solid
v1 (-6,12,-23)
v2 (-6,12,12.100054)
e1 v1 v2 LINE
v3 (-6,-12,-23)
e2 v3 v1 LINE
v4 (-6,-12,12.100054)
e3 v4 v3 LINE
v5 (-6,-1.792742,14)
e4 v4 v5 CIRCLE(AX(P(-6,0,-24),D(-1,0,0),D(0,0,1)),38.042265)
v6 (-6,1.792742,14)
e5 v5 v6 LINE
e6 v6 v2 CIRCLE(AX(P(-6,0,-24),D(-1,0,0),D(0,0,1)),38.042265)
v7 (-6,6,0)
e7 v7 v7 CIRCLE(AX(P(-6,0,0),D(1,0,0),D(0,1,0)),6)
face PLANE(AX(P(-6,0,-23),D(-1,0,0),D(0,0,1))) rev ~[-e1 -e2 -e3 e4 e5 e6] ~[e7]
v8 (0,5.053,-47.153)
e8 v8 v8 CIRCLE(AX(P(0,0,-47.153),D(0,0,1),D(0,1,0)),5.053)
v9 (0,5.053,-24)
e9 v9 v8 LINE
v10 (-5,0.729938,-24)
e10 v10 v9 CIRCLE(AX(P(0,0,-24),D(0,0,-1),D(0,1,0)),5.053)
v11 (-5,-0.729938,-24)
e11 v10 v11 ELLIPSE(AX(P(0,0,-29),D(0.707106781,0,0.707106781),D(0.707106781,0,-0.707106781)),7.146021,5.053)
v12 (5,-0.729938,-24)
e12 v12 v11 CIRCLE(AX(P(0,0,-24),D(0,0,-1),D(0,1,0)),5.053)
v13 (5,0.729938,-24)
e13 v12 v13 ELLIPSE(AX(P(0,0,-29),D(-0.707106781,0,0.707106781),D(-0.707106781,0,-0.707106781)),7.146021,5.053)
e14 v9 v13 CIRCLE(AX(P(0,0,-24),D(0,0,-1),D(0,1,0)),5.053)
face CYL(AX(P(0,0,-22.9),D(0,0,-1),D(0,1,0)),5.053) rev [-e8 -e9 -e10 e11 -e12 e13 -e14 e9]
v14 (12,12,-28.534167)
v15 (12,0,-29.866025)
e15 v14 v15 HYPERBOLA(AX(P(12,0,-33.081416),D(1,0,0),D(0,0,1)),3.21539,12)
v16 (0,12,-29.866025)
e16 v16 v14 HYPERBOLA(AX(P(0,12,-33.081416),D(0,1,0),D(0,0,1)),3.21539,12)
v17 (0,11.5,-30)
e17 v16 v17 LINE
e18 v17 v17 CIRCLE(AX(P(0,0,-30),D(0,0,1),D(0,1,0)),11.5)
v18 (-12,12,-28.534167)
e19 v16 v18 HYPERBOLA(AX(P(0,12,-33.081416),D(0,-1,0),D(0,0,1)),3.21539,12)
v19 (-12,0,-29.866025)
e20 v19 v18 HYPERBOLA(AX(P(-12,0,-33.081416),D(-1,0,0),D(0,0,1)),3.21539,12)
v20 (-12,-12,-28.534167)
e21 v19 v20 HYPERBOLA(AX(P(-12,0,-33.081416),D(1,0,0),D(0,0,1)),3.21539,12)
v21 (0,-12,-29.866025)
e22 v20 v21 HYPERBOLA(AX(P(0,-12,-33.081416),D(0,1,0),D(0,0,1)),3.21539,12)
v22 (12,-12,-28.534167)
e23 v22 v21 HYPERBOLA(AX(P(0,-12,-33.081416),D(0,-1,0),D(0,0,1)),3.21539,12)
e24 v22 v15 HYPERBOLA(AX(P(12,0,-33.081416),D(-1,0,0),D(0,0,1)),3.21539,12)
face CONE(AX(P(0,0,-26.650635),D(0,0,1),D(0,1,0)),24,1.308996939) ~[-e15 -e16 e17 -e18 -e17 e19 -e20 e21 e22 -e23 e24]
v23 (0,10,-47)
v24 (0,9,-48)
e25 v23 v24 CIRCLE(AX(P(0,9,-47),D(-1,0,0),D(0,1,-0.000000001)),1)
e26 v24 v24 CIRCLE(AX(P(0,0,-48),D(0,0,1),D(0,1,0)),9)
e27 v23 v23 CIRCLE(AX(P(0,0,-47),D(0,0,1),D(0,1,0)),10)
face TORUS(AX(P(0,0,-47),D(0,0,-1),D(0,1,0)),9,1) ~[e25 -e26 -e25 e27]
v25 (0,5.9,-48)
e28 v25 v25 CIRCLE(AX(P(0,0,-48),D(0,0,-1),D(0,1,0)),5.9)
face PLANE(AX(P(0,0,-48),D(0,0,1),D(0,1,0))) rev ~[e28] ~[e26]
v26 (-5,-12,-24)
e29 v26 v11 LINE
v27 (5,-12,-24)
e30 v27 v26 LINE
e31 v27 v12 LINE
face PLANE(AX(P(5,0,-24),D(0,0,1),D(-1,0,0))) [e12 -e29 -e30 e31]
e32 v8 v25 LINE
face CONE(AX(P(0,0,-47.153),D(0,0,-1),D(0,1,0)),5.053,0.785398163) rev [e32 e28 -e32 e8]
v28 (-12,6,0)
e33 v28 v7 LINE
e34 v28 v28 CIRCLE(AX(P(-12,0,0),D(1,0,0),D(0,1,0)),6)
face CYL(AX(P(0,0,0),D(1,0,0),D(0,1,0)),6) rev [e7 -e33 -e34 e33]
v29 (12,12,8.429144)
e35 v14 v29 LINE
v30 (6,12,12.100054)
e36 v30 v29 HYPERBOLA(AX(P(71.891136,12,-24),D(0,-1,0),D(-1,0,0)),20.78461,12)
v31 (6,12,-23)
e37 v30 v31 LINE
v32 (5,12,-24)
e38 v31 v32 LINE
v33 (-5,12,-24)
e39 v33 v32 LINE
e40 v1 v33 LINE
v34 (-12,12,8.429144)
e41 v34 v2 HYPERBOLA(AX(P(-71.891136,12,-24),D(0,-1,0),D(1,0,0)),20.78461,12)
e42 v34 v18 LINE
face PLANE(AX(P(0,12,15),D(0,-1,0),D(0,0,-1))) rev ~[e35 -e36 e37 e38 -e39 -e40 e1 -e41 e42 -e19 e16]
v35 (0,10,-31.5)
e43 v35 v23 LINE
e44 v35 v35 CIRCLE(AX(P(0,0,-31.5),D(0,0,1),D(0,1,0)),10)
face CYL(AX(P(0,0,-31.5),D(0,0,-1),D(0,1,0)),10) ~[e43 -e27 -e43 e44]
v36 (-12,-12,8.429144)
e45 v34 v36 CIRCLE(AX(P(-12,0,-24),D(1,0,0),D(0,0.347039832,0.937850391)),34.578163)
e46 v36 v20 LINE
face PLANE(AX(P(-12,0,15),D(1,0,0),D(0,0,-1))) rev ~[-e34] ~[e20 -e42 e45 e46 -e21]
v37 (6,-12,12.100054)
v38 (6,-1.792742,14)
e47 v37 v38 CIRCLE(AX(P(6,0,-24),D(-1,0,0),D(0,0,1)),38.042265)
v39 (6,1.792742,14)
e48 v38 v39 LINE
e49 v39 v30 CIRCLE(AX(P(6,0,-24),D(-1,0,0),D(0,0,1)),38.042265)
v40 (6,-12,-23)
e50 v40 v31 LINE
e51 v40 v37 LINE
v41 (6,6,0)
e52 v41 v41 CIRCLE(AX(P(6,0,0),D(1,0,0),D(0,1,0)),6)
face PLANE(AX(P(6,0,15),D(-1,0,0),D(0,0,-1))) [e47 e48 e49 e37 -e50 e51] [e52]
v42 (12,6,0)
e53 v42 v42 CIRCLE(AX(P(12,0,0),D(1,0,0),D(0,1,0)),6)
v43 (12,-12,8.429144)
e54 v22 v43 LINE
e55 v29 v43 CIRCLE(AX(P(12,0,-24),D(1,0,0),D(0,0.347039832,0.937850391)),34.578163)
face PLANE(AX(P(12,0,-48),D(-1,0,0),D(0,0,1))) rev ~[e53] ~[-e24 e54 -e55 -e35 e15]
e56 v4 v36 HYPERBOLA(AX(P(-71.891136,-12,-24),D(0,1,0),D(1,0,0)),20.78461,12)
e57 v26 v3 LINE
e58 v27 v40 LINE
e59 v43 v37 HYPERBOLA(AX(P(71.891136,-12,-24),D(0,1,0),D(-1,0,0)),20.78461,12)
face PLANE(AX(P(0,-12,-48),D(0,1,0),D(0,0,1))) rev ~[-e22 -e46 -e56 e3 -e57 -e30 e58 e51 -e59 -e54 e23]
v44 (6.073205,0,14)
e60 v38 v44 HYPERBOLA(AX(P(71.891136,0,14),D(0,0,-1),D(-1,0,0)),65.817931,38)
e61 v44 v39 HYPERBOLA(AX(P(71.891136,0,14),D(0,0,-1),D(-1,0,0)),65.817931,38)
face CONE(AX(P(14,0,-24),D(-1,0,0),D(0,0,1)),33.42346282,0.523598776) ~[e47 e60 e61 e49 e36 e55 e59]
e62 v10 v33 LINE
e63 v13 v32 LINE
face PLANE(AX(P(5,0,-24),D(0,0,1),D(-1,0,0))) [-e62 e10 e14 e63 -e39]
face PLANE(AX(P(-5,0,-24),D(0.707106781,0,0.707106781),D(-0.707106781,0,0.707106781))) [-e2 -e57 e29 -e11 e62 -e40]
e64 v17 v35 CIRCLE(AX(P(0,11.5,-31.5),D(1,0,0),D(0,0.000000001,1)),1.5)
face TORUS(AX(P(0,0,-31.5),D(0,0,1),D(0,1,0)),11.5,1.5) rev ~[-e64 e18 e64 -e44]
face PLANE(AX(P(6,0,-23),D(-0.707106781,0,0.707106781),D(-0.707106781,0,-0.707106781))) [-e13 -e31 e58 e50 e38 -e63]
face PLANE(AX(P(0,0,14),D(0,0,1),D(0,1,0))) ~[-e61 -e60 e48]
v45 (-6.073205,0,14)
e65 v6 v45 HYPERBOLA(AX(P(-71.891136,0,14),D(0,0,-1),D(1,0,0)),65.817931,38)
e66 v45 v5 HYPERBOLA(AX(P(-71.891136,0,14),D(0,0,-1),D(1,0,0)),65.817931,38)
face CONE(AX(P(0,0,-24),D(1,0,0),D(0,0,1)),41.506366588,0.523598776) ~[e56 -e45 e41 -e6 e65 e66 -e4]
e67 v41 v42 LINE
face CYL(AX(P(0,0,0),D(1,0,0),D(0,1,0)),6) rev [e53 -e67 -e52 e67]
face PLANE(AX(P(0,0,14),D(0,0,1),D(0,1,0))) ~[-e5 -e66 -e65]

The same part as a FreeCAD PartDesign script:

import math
import FreeCAD as App
import Part
import Sketcher
from FreeCAD import Vector
Q = App.Units.Quantity


def add_polygon(sketch, points):
    """Adds a closed chain of lines whose ends are joined by coincident constraints."""
    first, n = sketch.GeometryCount, len(points)
    for a, b in zip(points, points[1:] + points[:1]):
        sketch.addGeometry(Part.LineSegment(App.Vector(*a, 0), App.Vector(*b, 0)), False)
    for i in range(n):
        sketch.addConstraint(Sketcher.Constraint("Coincident", first + i, 2, first + (i + 1) % n, 1))

doc = App.newDocument("Part")
body = doc.addObject("PartDesign::Body", "Body")

sketch1 = body.newObject("Sketcher::SketchObject", "Sketch")
sketch1.AttachmentSupport = (doc.getObject("YZ_Plane"), [""])
sketch1.MapMode = "FlatFace"
sketch1.addGeometry([
    Part.LineSegment(Vector(24, 14, 0), Vector(0, 14, 0)),
    Part.LineSegment(Vector(0, 14, 0), Vector(0, -48, 0)),
    Part.LineSegment(Vector(0, -48, 0), Vector(9, -48, 0)),
    Part.ArcOfCircle(Part.Circle(Vector(9, -47, 0), Vector(0, 0, 1), 1), math.radians(-90), math.radians(0)),
    Part.LineSegment(Vector(10, -47, 0), Vector(10, -31.5, 0)),
    Part.ArcOfCircle(Part.Circle(Vector(11.5, -31.5, 0), Vector(0, 0, 1), 1.5), math.radians(90), math.radians(180)),
    Part.LineSegment(Vector(11.5, -30, 0), Vector(24, -26.650635, 0)),
    Part.LineSegment(Vector(24, -26.650635, 0), Vector(24, 14, 0)),
], False)
sketch1.addConstraint([
    Sketcher.Constraint("Coincident", 0, 2, 1, 1),
    Sketcher.Constraint("Coincident", 1, 2, 2, 1),
    Sketcher.Constraint("Tangent", 2, 2, 3, 1),
    Sketcher.Constraint("Tangent", 3, 2, 4, 1),
    Sketcher.Constraint("Tangent", 4, 2, 5, 2),
    Sketcher.Constraint("Coincident", 5, 1, 6, 1),
    Sketcher.Constraint("Coincident", 6, 2, 7, 1),
    Sketcher.Constraint("Coincident", 7, 2, 0, 1),
    Sketcher.Constraint("Horizontal", 0),
    Sketcher.Constraint("Vertical", 1),
    Sketcher.Constraint("Horizontal", 2),
    Sketcher.Constraint("Vertical", 4),
    Sketcher.Constraint("Vertical", 7),
    Sketcher.Constraint("PointOnObject", 0, 2, -2),
    Sketcher.Constraint("Radius", 3, 1.0),
    Sketcher.Constraint("Radius", 5, 1.5),
    Sketcher.Constraint("DistanceX", 0, 2, 0, 1, 24.0),
    Sketcher.Constraint("DistanceX", 2, 1, 2, 2, 9.0),
    Sketcher.Constraint("DistanceY", 1, 2, 1, 1, 62.0),
    Sketcher.Constraint("Angle", 6, Q("15 deg")),
    Sketcher.Constraint("DistanceY", 4, 1, 4, 2, 15.5),
    Sketcher.Constraint("DistanceY", 3, 3, -1, 1, 47.0),
    Sketcher.Constraint("DistanceX", -1, 1, 5, 1, 11.5),
])
revolution = body.newObject("PartDesign::Revolution", "Revolution")
revolution.Profile = sketch1
revolution.ReferenceAxis = (sketch1, ["V_Axis"])
revolution.Angle = 360

sketch2 = body.newObject("Sketcher::SketchObject", "Sketch001")
sketch2.AttachmentSupport = (doc.getObject("XZ_Plane"), [""])
sketch2.MapMode = "FlatFace"
add_polygon(sketch2, [(-6, -23), (-6, 15), (6, 15), (6, -23), (5, -24), (-5, -24)])
sketch2.addConstraint([
    Sketcher.Constraint("Vertical", 0),
    Sketcher.Constraint("Horizontal", 1),
    Sketcher.Constraint("Vertical", 2),
    Sketcher.Constraint("Horizontal", 4),
    Sketcher.Constraint("Symmetric", 2, 2, 5, 2, -2),
    Sketcher.Constraint("Perpendicular", 3, 5),
    Sketcher.Constraint("Equal", 3, 5),
    Sketcher.Constraint("DistanceX", 1, 1, 1, 2, 12.0),
    Sketcher.Constraint("DistanceX", 4, 2, 4, 1, 10.0),
    Sketcher.Constraint("DistanceY", 0, 1, 0, 2, 38.0),
    Sketcher.Constraint("DistanceY", -1, 1, 0, 2, 15.0),
])
pocket1 = body.newObject("PartDesign::Pocket", "Pocket")
pocket1.Profile = sketch2
pocket1.Type = "ThroughAll"
pocket1.Midplane = True

sketch3 = body.newObject("Sketcher::SketchObject", "Sketch002")
sketch3.AttachmentSupport = (doc.getObject("YZ_Plane"), [""])
sketch3.MapMode = "FlatFace"
add_polygon(sketch3, [(-36, 39), (-36, -48), (-12, -48), (-12, 15), (12, 15), (12, -48), (36, -48), (36, 39)])
sketch3.addConstraint([
    Sketcher.Constraint("Vertical", 0),
    Sketcher.Constraint("Horizontal", 1),
    Sketcher.Constraint("Vertical", 2),
    Sketcher.Constraint("Horizontal", 3),
    Sketcher.Constraint("Vertical", 4),
    Sketcher.Constraint("Horizontal", 5),
    Sketcher.Constraint("Vertical", 6),
    Sketcher.Constraint("Horizontal", 7),
    Sketcher.Constraint("Symmetric", 1, 2, 4, 2, -2),
    Sketcher.Constraint("Equal", 1, 3),
    Sketcher.Constraint("Equal", 3, 5),
    Sketcher.Constraint("DistanceX", 1, 1, 1, 2, 24.0),
    Sketcher.Constraint("DistanceY", 0, 2, 0, 1, 87.0),
    Sketcher.Constraint("DistanceY", 2, 1, 2, 2, 63.0),
    Sketcher.Constraint("DistanceY", 0, 2, -1, 1, 48.0),
])
pocket2 = body.newObject("PartDesign::Pocket", "Pocket001")
pocket2.Profile = sketch3
pocket2.Type = "ThroughAll"
pocket2.Midplane = True

sketch4 = body.newObject("Sketcher::SketchObject", "Sketch003")
sketch4.AttachmentSupport = (doc.getObject("XZ_Plane"), [""])
sketch4.MapMode = "FlatFace"
add_polygon(sketch4, [(-36, 39), (36, 39), (36, -48), (12, -48), (12, 15), (-12, 15), (-12, -48), (-36, -48)])
sketch4.addConstraint([
    Sketcher.Constraint("Horizontal", 0),
    Sketcher.Constraint("Vertical", 1),
    Sketcher.Constraint("Horizontal", 2),
    Sketcher.Constraint("Vertical", 3),
    Sketcher.Constraint("Horizontal", 4),
    Sketcher.Constraint("Vertical", 5),
    Sketcher.Constraint("Horizontal", 6),
    Sketcher.Constraint("Vertical", 7),
    Sketcher.Constraint("Symmetric", 2, 2, 5, 2, -2),
    Sketcher.Constraint("Equal", 2, 4),
    Sketcher.Constraint("Equal", 4, 6),
    Sketcher.Constraint("DistanceX", 0, 1, 0, 2, 72.0),
    Sketcher.Constraint("DistanceY", 1, 2, 1, 1, 87.0),
    Sketcher.Constraint("DistanceY", 3, 1, 3, 2, 63.0),
    Sketcher.Constraint("DistanceY", -1, 1, 0, 2, 39.0),
])
pocket3 = body.newObject("PartDesign::Pocket", "Pocket002")
pocket3.Profile = sketch4
pocket3.Type = "ThroughAll"
pocket3.Midplane = True

sketch5 = body.newObject("Sketcher::SketchObject", "Sketch004")
sketch5.AttachmentSupport = (doc.getObject("XY_Plane"), [""])
sketch5.MapMode = "FlatFace"
add_polygon(sketch5, [(-15.55, 6), (-15.55, 0), (15.55, 0), (15.55, 6)])
sketch5.addConstraint([
    Sketcher.Constraint("Vertical", 0),
    Sketcher.Constraint("Horizontal", 1),
    Sketcher.Constraint("Vertical", 2),
    Sketcher.Constraint("Horizontal", 3),
    Sketcher.Constraint("Symmetric", 0, 2, 1, 2, -1, 1),
    Sketcher.Constraint("DistanceY", 0, 2, 0, 1, 6.0),
    Sketcher.Constraint("DistanceX", 1, 1, 1, 2, 31.1),
])
groove = body.newObject("PartDesign::Groove", "Groove")
groove.Profile = sketch5
groove.ReferenceAxis = (sketch5, ["H_Axis"])
groove.Angle = 360

sketch6 = body.newObject("Sketcher::SketchObject", "Sketch005")
sketch6.AttachmentSupport = (doc.getObject("YZ_Plane"), [""])
sketch6.MapMode = "FlatFace"
add_polygon(sketch6, [(5.053, -22.9), (0, -22.9), (0, -48.1), (6, -48.1), (5.053, -47.153)])
sketch6.addConstraint([
    Sketcher.Constraint("Horizontal", 0),
    Sketcher.Constraint("Vertical", 1),
    Sketcher.Constraint("Horizontal", 2),
    Sketcher.Constraint("Vertical", 4),
    Sketcher.Constraint("PointOnObject", 0, 2, -2),
    Sketcher.Constraint("DistanceX", 2, 1, 2, 2, 6.0),
    Sketcher.Constraint("Angle", 3, Q("135 deg")),
    Sketcher.Constraint("DistanceY", 1, 2, 1, 1, 25.2),
    Sketcher.Constraint("DistanceY", 0, 2, -1, 1, 22.9),
    Sketcher.Constraint("DistanceX", 0, 2, 0, 1, 5.053),
])
groove2 = body.newObject("PartDesign::Groove", "Groove001")
groove2.Profile = sketch6
groove2.ReferenceAxis = (sketch6, ["V_Axis"])
groove2.Angle = 360

sketch7 = body.newObject("Sketcher::SketchObject", "Sketch006")
sketch7.AttachmentSupport = (doc.getObject("XZ_Plane"), [""])
sketch7.MapMode = "FlatFace"
add_polygon(sketch7, [(-14, 9.423463), (-14, 37.136276), (0, 45.21918), (14, 37.136276), (14, 9.423463), (0, 17.506367)])
sketch7.addGeometry(Part.LineSegment(Vector(-14, -24, 0), Vector(14, -24, 0)), True)
sketch7.addConstraint([
    Sketcher.Constraint("Vertical", 0),
    Sketcher.Constraint("Vertical", 3),
    Sketcher.Constraint("Horizontal", 6),
    Sketcher.Constraint("Symmetric", 0, 2, 2, 2, -2),
    Sketcher.Constraint("PointOnObject", 1, 2, -2),
    Sketcher.Constraint("PointOnObject", 4, 2, -2),
    Sketcher.Constraint("Parallel", 2, 4),
    Sketcher.Constraint("Parallel", 1, 5),
    Sketcher.Constraint("Vertical", 5, 2, 6, 1),
    Sketcher.Constraint("Vertical", 3, 2, 6, 2),
    Sketcher.Constraint("DistanceX", 6, 1, 6, 2, 28.0),
    Sketcher.Constraint("Angle", 1, Q("30 deg")),
    Sketcher.Constraint("DistanceY", 6, 1, -1, 1, 24.0),
    Sketcher.Constraint("DistanceY", 0, 1, 0, 2, 27.712813),
    Sketcher.Constraint("DistanceY", -1, 1, 1, 2, 45.21918),
])
groove3 = body.newObject("PartDesign::Groove", "Groove002")
groove3.Profile = sketch7
groove3.ReferenceAxis = (sketch7, ["Axis0"])
groove3.Angle = 90

sketch8 = body.newObject("Sketcher::SketchObject", "Sketch007")
sketch8.AttachmentSupport = (doc.getObject("XZ_Plane"), [""])
sketch8.MapMode = "FlatFace"
add_polygon(sketch8, [(-14, 9.423463), (-14, 37.136276), (0, 45.21918), (14, 37.136276), (14, 9.423463), (0, 17.506367)])
sketch8.addGeometry(Part.LineSegment(Vector(14, -24, 0), Vector(-14, -24, 0)), True)
sketch8.addConstraint([
    Sketcher.Constraint("Vertical", 0),
    Sketcher.Constraint("Vertical", 3),
    Sketcher.Constraint("Horizontal", 6),
    Sketcher.Constraint("Symmetric", 0, 2, 2, 2, -2),
    Sketcher.Constraint("PointOnObject", 1, 2, -2),
    Sketcher.Constraint("PointOnObject", 4, 2, -2),
    Sketcher.Constraint("Parallel", 2, 4),
    Sketcher.Constraint("Parallel", 1, 5),
    Sketcher.Constraint("Vertical", 3, 2, 6, 1),
    Sketcher.Constraint("Vertical", 5, 2, 6, 2),
    Sketcher.Constraint("DistanceX", 6, 2, 6, 1, 28.0),
    Sketcher.Constraint("Angle", 1, Q("30 deg")),
    Sketcher.Constraint("DistanceY", 6, 1, -1, 1, 24.0),
    Sketcher.Constraint("DistanceY", 0, 1, 0, 2, 27.712813),
    Sketcher.Constraint("DistanceY", -1, 1, 1, 2, 45.21918),
])
groove4 = body.newObject("PartDesign::Groove", "Groove003")
groove4.Profile = sketch8
groove4.ReferenceAxis = (sketch8, ["Axis0"])
groove4.Angle = 90

doc.recompute()
